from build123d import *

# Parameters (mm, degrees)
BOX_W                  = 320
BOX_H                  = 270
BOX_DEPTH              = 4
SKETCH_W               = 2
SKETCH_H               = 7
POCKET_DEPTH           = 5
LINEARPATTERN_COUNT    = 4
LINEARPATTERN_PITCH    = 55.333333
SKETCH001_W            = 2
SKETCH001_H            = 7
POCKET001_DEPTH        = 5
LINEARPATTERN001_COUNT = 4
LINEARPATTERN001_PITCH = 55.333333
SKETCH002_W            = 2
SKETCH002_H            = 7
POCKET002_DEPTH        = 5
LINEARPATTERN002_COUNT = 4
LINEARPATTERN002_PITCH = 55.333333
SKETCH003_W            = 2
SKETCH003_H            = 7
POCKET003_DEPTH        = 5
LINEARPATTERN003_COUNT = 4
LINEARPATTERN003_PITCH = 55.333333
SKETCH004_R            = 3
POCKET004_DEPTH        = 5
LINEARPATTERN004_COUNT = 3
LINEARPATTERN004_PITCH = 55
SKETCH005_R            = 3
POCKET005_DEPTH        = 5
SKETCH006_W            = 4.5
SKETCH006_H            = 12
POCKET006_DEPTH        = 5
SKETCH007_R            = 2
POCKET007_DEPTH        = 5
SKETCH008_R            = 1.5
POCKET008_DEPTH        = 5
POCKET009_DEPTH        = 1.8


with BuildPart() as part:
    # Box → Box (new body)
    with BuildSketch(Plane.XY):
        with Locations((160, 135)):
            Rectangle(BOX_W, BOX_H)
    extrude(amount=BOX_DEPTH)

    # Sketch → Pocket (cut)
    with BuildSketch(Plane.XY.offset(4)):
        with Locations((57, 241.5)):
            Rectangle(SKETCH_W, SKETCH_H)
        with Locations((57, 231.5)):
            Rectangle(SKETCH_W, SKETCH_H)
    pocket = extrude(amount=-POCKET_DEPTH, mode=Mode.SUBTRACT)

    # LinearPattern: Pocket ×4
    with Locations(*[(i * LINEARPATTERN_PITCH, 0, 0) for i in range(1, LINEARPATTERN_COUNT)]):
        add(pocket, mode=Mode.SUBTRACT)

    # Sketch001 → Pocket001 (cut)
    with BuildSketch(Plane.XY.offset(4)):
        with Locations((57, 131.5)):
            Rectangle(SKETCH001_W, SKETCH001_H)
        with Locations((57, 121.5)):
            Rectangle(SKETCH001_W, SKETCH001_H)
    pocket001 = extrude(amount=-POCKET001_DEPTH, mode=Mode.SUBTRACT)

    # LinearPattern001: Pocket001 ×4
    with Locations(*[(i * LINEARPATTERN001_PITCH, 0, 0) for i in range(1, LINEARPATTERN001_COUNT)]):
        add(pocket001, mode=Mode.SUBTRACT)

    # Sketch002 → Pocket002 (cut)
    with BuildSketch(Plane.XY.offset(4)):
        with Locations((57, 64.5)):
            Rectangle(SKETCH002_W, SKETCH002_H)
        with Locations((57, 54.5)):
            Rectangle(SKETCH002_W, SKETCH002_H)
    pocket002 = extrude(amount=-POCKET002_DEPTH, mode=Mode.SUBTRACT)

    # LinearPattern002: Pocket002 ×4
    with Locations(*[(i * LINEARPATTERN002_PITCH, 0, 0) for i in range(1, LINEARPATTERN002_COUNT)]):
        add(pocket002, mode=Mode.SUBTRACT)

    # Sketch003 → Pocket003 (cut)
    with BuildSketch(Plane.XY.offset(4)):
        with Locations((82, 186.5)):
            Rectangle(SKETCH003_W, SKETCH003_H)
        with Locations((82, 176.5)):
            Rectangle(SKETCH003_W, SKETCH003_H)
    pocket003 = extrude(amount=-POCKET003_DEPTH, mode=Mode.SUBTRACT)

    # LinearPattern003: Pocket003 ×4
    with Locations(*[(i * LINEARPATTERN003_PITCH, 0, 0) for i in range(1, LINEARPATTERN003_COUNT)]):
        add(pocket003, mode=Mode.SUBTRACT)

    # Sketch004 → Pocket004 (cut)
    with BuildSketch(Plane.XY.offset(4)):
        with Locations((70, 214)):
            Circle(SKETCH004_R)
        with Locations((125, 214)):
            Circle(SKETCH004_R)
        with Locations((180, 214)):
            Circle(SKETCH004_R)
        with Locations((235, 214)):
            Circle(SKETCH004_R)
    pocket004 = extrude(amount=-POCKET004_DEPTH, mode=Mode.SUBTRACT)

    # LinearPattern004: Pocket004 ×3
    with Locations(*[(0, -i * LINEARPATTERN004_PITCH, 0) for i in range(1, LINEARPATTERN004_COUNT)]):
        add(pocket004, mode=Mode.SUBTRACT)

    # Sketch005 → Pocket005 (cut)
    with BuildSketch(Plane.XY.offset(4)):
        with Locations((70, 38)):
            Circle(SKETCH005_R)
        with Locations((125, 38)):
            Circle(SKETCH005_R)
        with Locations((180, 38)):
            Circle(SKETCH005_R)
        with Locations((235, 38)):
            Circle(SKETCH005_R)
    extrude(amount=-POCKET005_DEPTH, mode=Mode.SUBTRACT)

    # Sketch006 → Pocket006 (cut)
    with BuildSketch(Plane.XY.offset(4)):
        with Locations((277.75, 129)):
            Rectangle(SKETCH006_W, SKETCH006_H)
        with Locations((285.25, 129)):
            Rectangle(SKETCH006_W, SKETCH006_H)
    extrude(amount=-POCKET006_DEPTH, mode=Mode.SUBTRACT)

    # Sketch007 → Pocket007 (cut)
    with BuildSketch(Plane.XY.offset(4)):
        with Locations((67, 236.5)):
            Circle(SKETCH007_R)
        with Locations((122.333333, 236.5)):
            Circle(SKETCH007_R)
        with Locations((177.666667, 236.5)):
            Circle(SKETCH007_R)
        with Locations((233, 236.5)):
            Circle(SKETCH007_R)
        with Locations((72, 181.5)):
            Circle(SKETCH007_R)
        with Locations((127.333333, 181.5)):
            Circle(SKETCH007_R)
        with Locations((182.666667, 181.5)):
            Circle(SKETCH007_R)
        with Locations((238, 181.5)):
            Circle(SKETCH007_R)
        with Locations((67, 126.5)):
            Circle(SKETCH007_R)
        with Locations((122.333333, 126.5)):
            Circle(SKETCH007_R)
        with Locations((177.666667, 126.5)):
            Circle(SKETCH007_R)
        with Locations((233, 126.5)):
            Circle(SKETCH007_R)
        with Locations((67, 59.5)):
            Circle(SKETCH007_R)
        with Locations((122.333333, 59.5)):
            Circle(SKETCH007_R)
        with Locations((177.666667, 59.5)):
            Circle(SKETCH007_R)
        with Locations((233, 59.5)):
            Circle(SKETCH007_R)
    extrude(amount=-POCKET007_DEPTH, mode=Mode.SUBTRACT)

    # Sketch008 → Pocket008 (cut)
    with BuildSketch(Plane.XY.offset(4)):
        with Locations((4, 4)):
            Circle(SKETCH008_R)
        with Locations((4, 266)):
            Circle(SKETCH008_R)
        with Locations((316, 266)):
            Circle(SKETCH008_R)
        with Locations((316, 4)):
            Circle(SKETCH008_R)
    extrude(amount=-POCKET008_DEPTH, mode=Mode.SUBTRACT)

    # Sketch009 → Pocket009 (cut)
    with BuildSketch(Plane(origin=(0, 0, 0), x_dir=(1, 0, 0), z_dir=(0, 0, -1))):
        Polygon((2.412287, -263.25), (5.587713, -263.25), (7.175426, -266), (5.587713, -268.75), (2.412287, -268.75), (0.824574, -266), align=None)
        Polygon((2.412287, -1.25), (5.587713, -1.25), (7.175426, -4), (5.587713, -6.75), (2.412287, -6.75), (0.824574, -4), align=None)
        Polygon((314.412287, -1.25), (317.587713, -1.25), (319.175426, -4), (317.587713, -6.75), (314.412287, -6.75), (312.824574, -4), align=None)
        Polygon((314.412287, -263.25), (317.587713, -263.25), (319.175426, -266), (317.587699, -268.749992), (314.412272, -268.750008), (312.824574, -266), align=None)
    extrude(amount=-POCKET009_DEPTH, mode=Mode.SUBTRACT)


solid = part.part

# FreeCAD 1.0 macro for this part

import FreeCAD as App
import Part
import Sketcher
from FreeCAD import Vector
Q = App.Units.Quantity

doc = App.newDocument("Part")
body = doc.addObject("PartDesign::Body", "Body")

# Sketch on XY plane
sketch1 = body.newObject("Sketcher::SketchObject", "Sketch")
sketch1.AttachmentSupport = (doc.getObject("XY_Plane"), [""])
sketch1.MapMode = "FlatFace"
sketch1.addGeometry([
    Part.LineSegment(Vector(0, 270, 0), Vector(0, 0, 0)),
    Part.LineSegment(Vector(0, 0, 0), Vector(320, 0, 0)),
    Part.LineSegment(Vector(320, 0, 0), Vector(320, 270, 0)),
    Part.LineSegment(Vector(320, 270, 0), Vector(0, 270, 0)),
], False)
sketch1.addConstraint([
    Sketcher.Constraint("Coincident", 0, 2, 1, 1),
    Sketcher.Constraint("Coincident", 1, 2, 2, 1),
    Sketcher.Constraint("Coincident", 2, 2, 3, 1),
    Sketcher.Constraint("Coincident", 3, 2, 0, 1),
    Sketcher.Constraint("Vertical", 0),
    Sketcher.Constraint("Horizontal", 1),
    Sketcher.Constraint("Vertical", 2),
    Sketcher.Constraint("Horizontal", 3),
    Sketcher.Constraint("Coincident", 0, 2, -1, 1),
    Sketcher.Constraint("DistanceX", 1, 1, 1, 2, Q("320 mm")),
    Sketcher.Constraint("DistanceY", 0, 2, 0, 1, Q("270 mm")),
])
pad1 = body.newObject("PartDesign::Pad", "Pad")
pad1.Profile = sketch1
pad1.Length = 4

# Sketch on XY plane
sketch2 = body.newObject("Sketcher::SketchObject", "Sketch001")
sketch2.AttachmentSupport = (doc.getObject("XY_Plane"), [""])
sketch2.MapMode = "FlatFace"
sketch2.AttachmentOffset = App.Placement(Vector(0, 0, 4), App.Rotation())
sketch2.addGeometry([
    Part.LineSegment(Vector(56, 245, 0), Vector(56, 238, 0)),  # 0
    Part.LineSegment(Vector(56, 238, 0), Vector(58, 238, 0)),  # 1
    Part.LineSegment(Vector(58, 238, 0), Vector(58, 245, 0)),  # 2
    Part.LineSegment(Vector(58, 245, 0), Vector(56, 245, 0)),  # 3
    Part.LineSegment(Vector(56, 235, 0), Vector(56, 228, 0)),  # 4
    Part.LineSegment(Vector(56, 228, 0), Vector(58, 228, 0)),  # 5
    Part.LineSegment(Vector(58, 228, 0), Vector(58, 235, 0)),  # 6
    Part.LineSegment(Vector(58, 235, 0), Vector(56, 235, 0)),  # 7
], False)
sketch2.addConstraint([
    Sketcher.Constraint("Coincident", 0, 2, 1, 1),
    Sketcher.Constraint("Coincident", 1, 2, 2, 1),
    Sketcher.Constraint("Coincident", 2, 2, 3, 1),
    Sketcher.Constraint("Coincident", 3, 2, 0, 1),
    Sketcher.Constraint("Coincident", 4, 2, 5, 1),
    Sketcher.Constraint("Coincident", 5, 2, 6, 1),
    Sketcher.Constraint("Coincident", 6, 2, 7, 1),
    Sketcher.Constraint("Coincident", 7, 2, 4, 1),
    Sketcher.Constraint("Vertical", 0),
    Sketcher.Constraint("Horizontal", 1),
    Sketcher.Constraint("Vertical", 2),
    Sketcher.Constraint("Horizontal", 3),
    Sketcher.Constraint("Vertical", 4),
    Sketcher.Constraint("Horizontal", 5),
    Sketcher.Constraint("Vertical", 6),
    Sketcher.Constraint("Horizontal", 7),
    Sketcher.Constraint("Vertical", 3, 2, 4, 2),
    Sketcher.Constraint("Vertical", 2, 2, 5, 2),
    Sketcher.Constraint("Equal", 2, 4),
    Sketcher.Constraint("DistanceX", 1, 1, 1, 2, Q("2 mm")),
    Sketcher.Constraint("DistanceY", 0, 2, 0, 1, Q("7 mm")),
    Sketcher.Constraint("DistanceX", -1, 1, 0, 2, Q("56 mm")),
    Sketcher.Constraint("DistanceY", -1, 1, 0, 2, Q("238 mm")),
    Sketcher.Constraint("DistanceY", -1, 1, 4, 2, Q("228 mm")),
])
pocket1 = body.newObject("PartDesign::Pocket", "Pocket")
pocket1.Profile = sketch2
pocket1.Length = 5
doc.recompute()

linearpattern = body.newObject("PartDesign::LinearPattern", "LinearPattern")
linearpattern.Originals = [pocket1]
linearpattern.Direction = (doc.getObject("X_Axis"), [""])
linearpattern.Mode = "offset"
linearpattern.Offset = 55.333333
linearpattern.Occurrences = 4
body.Tip = linearpattern

# Sketch on XY plane
sketch3 = body.newObject("Sketcher::SketchObject", "Sketch002")
sketch3.AttachmentSupport = (doc.getObject("XY_Plane"), [""])
sketch3.MapMode = "FlatFace"
sketch3.AttachmentOffset = App.Placement(Vector(0, 0, 4), App.Rotation())
sketch3.addGeometry([
    Part.LineSegment(Vector(56, 135, 0), Vector(56, 128, 0)),  # 0
    Part.LineSegment(Vector(56, 128, 0), Vector(58, 128, 0)),  # 1
    Part.LineSegment(Vector(58, 128, 0), Vector(58, 135, 0)),  # 2
    Part.LineSegment(Vector(58, 135, 0), Vector(56, 135, 0)),  # 3
    Part.LineSegment(Vector(56, 125, 0), Vector(56, 118, 0)),  # 4
    Part.LineSegment(Vector(56, 118, 0), Vector(58, 118, 0)),  # 5
    Part.LineSegment(Vector(58, 118, 0), Vector(58, 125, 0)),  # 6
    Part.LineSegment(Vector(58, 125, 0), Vector(56, 125, 0)),  # 7
], False)
sketch3.addConstraint([
    Sketcher.Constraint("Coincident", 0, 2, 1, 1),
    Sketcher.Constraint("Coincident", 1, 2, 2, 1),
    Sketcher.Constraint("Coincident", 2, 2, 3, 1),
    Sketcher.Constraint("Coincident", 3, 2, 0, 1),
    Sketcher.Constraint("Coincident", 4, 2, 5, 1),
    Sketcher.Constraint("Coincident", 5, 2, 6, 1),
    Sketcher.Constraint("Coincident", 6, 2, 7, 1),
    Sketcher.Constraint("Coincident", 7, 2, 4, 1),
    Sketcher.Constraint("Vertical", 0),
    Sketcher.Constraint("Horizontal", 1),
    Sketcher.Constraint("Vertical", 2),
    Sketcher.Constraint("Horizontal", 3),
    Sketcher.Constraint("Vertical", 4),
    Sketcher.Constraint("Horizontal", 5),
    Sketcher.Constraint("Vertical", 6),
    Sketcher.Constraint("Horizontal", 7),
    Sketcher.Constraint("Vertical", 3, 2, 4, 2),
    Sketcher.Constraint("Vertical", 2, 2, 5, 2),
    Sketcher.Constraint("Equal", 2, 4),
    Sketcher.Constraint("DistanceX", 1, 1, 1, 2, Q("2 mm")),
    Sketcher.Constraint("DistanceY", 0, 2, 0, 1, Q("7 mm")),
    Sketcher.Constraint("DistanceX", -1, 1, 0, 2, Q("56 mm")),
    Sketcher.Constraint("DistanceY", -1, 1, 0, 2, Q("128 mm")),
    Sketcher.Constraint("DistanceY", -1, 1, 4, 2, Q("118 mm")),
])
pocket2 = body.newObject("PartDesign::Pocket", "Pocket001")
pocket2.Profile = sketch3
pocket2.Length = 5
doc.recompute()

linearpattern2 = body.newObject("PartDesign::LinearPattern", "LinearPattern001")
linearpattern2.Originals = [pocket2]
linearpattern2.Direction = (doc.getObject("X_Axis"), [""])
linearpattern2.Mode = "offset"
linearpattern2.Offset = 55.333333
linearpattern2.Occurrences = 4
body.Tip = linearpattern2

# Sketch on XY plane
sketch4 = body.newObject("Sketcher::SketchObject", "Sketch003")
sketch4.AttachmentSupport = (doc.getObject("XY_Plane"), [""])
sketch4.MapMode = "FlatFace"
sketch4.AttachmentOffset = App.Placement(Vector(0, 0, 4), App.Rotation())
sketch4.addGeometry([
    Part.LineSegment(Vector(56, 68, 0), Vector(56, 61, 0)),  # 0
    Part.LineSegment(Vector(56, 61, 0), Vector(58, 61, 0)),  # 1
    Part.LineSegment(Vector(58, 61, 0), Vector(58, 68, 0)),  # 2
    Part.LineSegment(Vector(58, 68, 0), Vector(56, 68, 0)),  # 3
    Part.LineSegment(Vector(56, 58, 0), Vector(56, 51, 0)),  # 4
    Part.LineSegment(Vector(56, 51, 0), Vector(58, 51, 0)),  # 5
    Part.LineSegment(Vector(58, 51, 0), Vector(58, 58, 0)),  # 6
    Part.LineSegment(Vector(58, 58, 0), Vector(56, 58, 0)),  # 7
], False)
sketch4.addConstraint([
    Sketcher.Constraint("Coincident", 0, 2, 1, 1),
    Sketcher.Constraint("Coincident", 1, 2, 2, 1),
    Sketcher.Constraint("Coincident", 2, 2, 3, 1),
    Sketcher.Constraint("Coincident", 3, 2, 0, 1),
    Sketcher.Constraint("Coincident", 4, 2, 5, 1),
    Sketcher.Constraint("Coincident", 5, 2, 6, 1),
    Sketcher.Constraint("Coincident", 6, 2, 7, 1),
    Sketcher.Constraint("Coincident", 7, 2, 4, 1),
    Sketcher.Constraint("Vertical", 0),
    Sketcher.Constraint("Horizontal", 1),
    Sketcher.Constraint("Vertical", 2),
    Sketcher.Constraint("Horizontal", 3),
    Sketcher.Constraint("Vertical", 4),
    Sketcher.Constraint("Horizontal", 5),
    Sketcher.Constraint("Vertical", 6),
    Sketcher.Constraint("Horizontal", 7),
    Sketcher.Constraint("Vertical", 3, 2, 4, 2),
    Sketcher.Constraint("Vertical", 2, 2, 5, 2),
    Sketcher.Constraint("Equal", 2, 4),
    Sketcher.Constraint("DistanceX", 1, 1, 1, 2, Q("2 mm")),
    Sketcher.Constraint("DistanceY", 0, 2, 0, 1, Q("7 mm")),
    Sketcher.Constraint("DistanceX", -1, 1, 0, 2, Q("56 mm")),
    Sketcher.Constraint("DistanceY", -1, 1, 0, 2, Q("61 mm")),
    Sketcher.Constraint("DistanceY", -1, 1, 4, 2, Q("51 mm")),
])
pocket3 = body.newObject("PartDesign::Pocket", "Pocket002")
pocket3.Profile = sketch4
pocket3.Length = 5
doc.recompute()

linearpattern3 = body.newObject("PartDesign::LinearPattern", "LinearPattern002")
linearpattern3.Originals = [pocket3]
linearpattern3.Direction = (doc.getObject("X_Axis"), [""])
linearpattern3.Mode = "offset"
linearpattern3.Offset = 55.333333
linearpattern3.Occurrences = 4
body.Tip = linearpattern3

# Sketch on XY plane
sketch5 = body.newObject("Sketcher::SketchObject", "Sketch004")
sketch5.AttachmentSupport = (doc.getObject("XY_Plane"), [""])
sketch5.MapMode = "FlatFace"
sketch5.AttachmentOffset = App.Placement(Vector(0, 0, 4), App.Rotation())
sketch5.addGeometry([
    Part.LineSegment(Vector(81, 190, 0), Vector(81, 183, 0)),  # 0
    Part.LineSegment(Vector(81, 183, 0), Vector(83, 183, 0)),  # 1
    Part.LineSegment(Vector(83, 183, 0), Vector(83, 190, 0)),  # 2
    Part.LineSegment(Vector(83, 190, 0), Vector(81, 190, 0)),  # 3
    Part.LineSegment(Vector(81, 180, 0), Vector(81, 173, 0)),  # 4
    Part.LineSegment(Vector(81, 173, 0), Vector(83, 173, 0)),  # 5
    Part.LineSegment(Vector(83, 173, 0), Vector(83, 180, 0)),  # 6
    Part.LineSegment(Vector(83, 180, 0), Vector(81, 180, 0)),  # 7
], False)
sketch5.addConstraint([
    Sketcher.Constraint("Coincident", 0, 2, 1, 1),
    Sketcher.Constraint("Coincident", 1, 2, 2, 1),
    Sketcher.Constraint("Coincident", 2, 2, 3, 1),
    Sketcher.Constraint("Coincident", 3, 2, 0, 1),
    Sketcher.Constraint("Coincident", 4, 2, 5, 1),
    Sketcher.Constraint("Coincident", 5, 2, 6, 1),
    Sketcher.Constraint("Coincident", 6, 2, 7, 1),
    Sketcher.Constraint("Coincident", 7, 2, 4, 1),
    Sketcher.Constraint("Vertical", 0),
    Sketcher.Constraint("Horizontal", 1),
    Sketcher.Constraint("Vertical", 2),
    Sketcher.Constraint("Horizontal", 3),
    Sketcher.Constraint("Vertical", 4),
    Sketcher.Constraint("Horizontal", 5),
    Sketcher.Constraint("Vertical", 6),
    Sketcher.Constraint("Horizontal", 7),
    Sketcher.Constraint("Vertical", 3, 2, 4, 2),
    Sketcher.Constraint("Vertical", 2, 2, 5, 2),
    Sketcher.Constraint("Equal", 2, 4),
    Sketcher.Constraint("DistanceX", 1, 1, 1, 2, Q("2 mm")),
    Sketcher.Constraint("DistanceY", 0, 2, 0, 1, Q("7 mm")),
    Sketcher.Constraint("DistanceX", -1, 1, 0, 2, Q("81 mm")),
    Sketcher.Constraint("DistanceY", -1, 1, 0, 2, Q("183 mm")),
    Sketcher.Constraint("DistanceY", -1, 1, 4, 2, Q("173 mm")),
])
pocket4 = body.newObject("PartDesign::Pocket", "Pocket003")
pocket4.Profile = sketch5
pocket4.Length = 5
doc.recompute()

linearpattern4 = body.newObject("PartDesign::LinearPattern", "LinearPattern003")
linearpattern4.Originals = [pocket4]
linearpattern4.Direction = (doc.getObject("X_Axis"), [""])
linearpattern4.Mode = "offset"
linearpattern4.Offset = 55.333333
linearpattern4.Occurrences = 4
body.Tip = linearpattern4

# Sketch on XY plane
sketch6 = body.newObject("Sketcher::SketchObject", "Sketch005")
sketch6.AttachmentSupport = (doc.getObject("XY_Plane"), [""])
sketch6.MapMode = "FlatFace"
sketch6.AttachmentOffset = App.Placement(Vector(0, 0, 4), App.Rotation())
sketch6.addGeometry([
    Part.Circle(Vector(70, 214, 0), Vector(0, 0, 1), 3),
    Part.Circle(Vector(125, 214, 0), Vector(0, 0, 1), 3),
    Part.Circle(Vector(180, 214, 0), Vector(0, 0, 1), 3),
    Part.Circle(Vector(235, 214, 0), Vector(0, 0, 1), 3),
], False)
sketch6.addConstraint([
    Sketcher.Constraint("Equal", 0, 1),
    Sketcher.Constraint("Equal", 1, 2),
    Sketcher.Constraint("Equal", 2, 3),
    Sketcher.Constraint("Horizontal", 0, 3, 1, 3),
    Sketcher.Constraint("Horizontal", 1, 3, 2, 3),
    Sketcher.Constraint("Horizontal", 2, 3, 3, 3),
    Sketcher.Constraint("Diameter", 0, Q("6 mm")),
    Sketcher.Constraint("DistanceX", -1, 1, 0, 3, Q("70 mm")),
    Sketcher.Constraint("DistanceY", -1, 1, 0, 3, Q("214 mm")),
    Sketcher.Constraint("DistanceX", -1, 1, 1, 3, Q("125 mm")),
    Sketcher.Constraint("DistanceX", -1, 1, 2, 3, Q("180 mm")),
    Sketcher.Constraint("DistanceX", -1, 1, 3, 3, Q("235 mm")),
])
pocket5 = body.newObject("PartDesign::Pocket", "Pocket004")
pocket5.Profile = sketch6
pocket5.Length = 5
doc.recompute()

linearpattern5 = body.newObject("PartDesign::LinearPattern", "LinearPattern004")
linearpattern5.Originals = [pocket5]
linearpattern5.Direction = (doc.getObject("Y_Axis"), [""])
linearpattern5.Mode = "offset"
linearpattern5.Offset = 55
linearpattern5.Occurrences = 3
linearpattern5.Reversed = True
body.Tip = linearpattern5

# Sketch on XY plane
sketch7 = body.newObject("Sketcher::SketchObject", "Sketch006")
sketch7.AttachmentSupport = (doc.getObject("XY_Plane"), [""])
sketch7.MapMode = "FlatFace"
sketch7.AttachmentOffset = App.Placement(Vector(0, 0, 4), App.Rotation())
sketch7.addGeometry([
    Part.Circle(Vector(70, 38, 0), Vector(0, 0, 1), 3),
    Part.Circle(Vector(125, 38, 0), Vector(0, 0, 1), 3),
    Part.Circle(Vector(180, 38, 0), Vector(0, 0, 1), 3),
    Part.Circle(Vector(235, 38, 0), Vector(0, 0, 1), 3),
], False)
sketch7.addConstraint([
    Sketcher.Constraint("Equal", 0, 1),
    Sketcher.Constraint("Equal", 1, 2),
    Sketcher.Constraint("Equal", 2, 3),
    Sketcher.Constraint("Horizontal", 0, 3, 1, 3),
    Sketcher.Constraint("Horizontal", 1, 3, 2, 3),
    Sketcher.Constraint("Horizontal", 2, 3, 3, 3),
    Sketcher.Constraint("Diameter", 0, Q("6 mm")),
    Sketcher.Constraint("DistanceX", -1, 1, 0, 3, Q("70 mm")),
    Sketcher.Constraint("DistanceY", -1, 1, 0, 3, Q("38 mm")),
    Sketcher.Constraint("DistanceX", -1, 1, 1, 3, Q("125 mm")),
    Sketcher.Constraint("DistanceX", -1, 1, 2, 3, Q("180 mm")),
    Sketcher.Constraint("DistanceX", -1, 1, 3, 3, Q("235 mm")),
])
pocket6 = body.newObject("PartDesign::Pocket", "Pocket005")
pocket6.Profile = sketch7
pocket6.Length = 5

# Sketch on XY plane
sketch8 = body.newObject("Sketcher::SketchObject", "Sketch007")
sketch8.AttachmentSupport = (doc.getObject("XY_Plane"), [""])
sketch8.MapMode = "FlatFace"
sketch8.AttachmentOffset = App.Placement(Vector(0, 0, 4), App.Rotation())
sketch8.addGeometry([
    Part.LineSegment(Vector(275.5, 135, 0), Vector(275.5, 123, 0)),  # 0
    Part.LineSegment(Vector(275.5, 123, 0), Vector(280, 123, 0)),  # 1
    Part.LineSegment(Vector(280, 123, 0), Vector(280, 135, 0)),  # 2
    Part.LineSegment(Vector(280, 135, 0), Vector(275.5, 135, 0)),  # 3
    Part.LineSegment(Vector(283, 135, 0), Vector(283, 123, 0)),  # 4
    Part.LineSegment(Vector(283, 123, 0), Vector(287.5, 123, 0)),  # 5
    Part.LineSegment(Vector(287.5, 123, 0), Vector(287.5, 135, 0)),  # 6
    Part.LineSegment(Vector(287.5, 135, 0), Vector(283, 135, 0)),  # 7
], False)
sketch8.addConstraint([
    Sketcher.Constraint("Coincident", 0, 2, 1, 1),
    Sketcher.Constraint("Coincident", 1, 2, 2, 1),
    Sketcher.Constraint("Coincident", 2, 2, 3, 1),
    Sketcher.Constraint("Coincident", 3, 2, 0, 1),
    Sketcher.Constraint("Coincident", 4, 2, 5, 1),
    Sketcher.Constraint("Coincident", 5, 2, 6, 1),
    Sketcher.Constraint("Coincident", 6, 2, 7, 1),
    Sketcher.Constraint("Coincident", 7, 2, 4, 1),
    Sketcher.Constraint("Vertical", 0),
    Sketcher.Constraint("Horizontal", 1),
    Sketcher.Constraint("Vertical", 2),
    Sketcher.Constraint("Horizontal", 3),
    Sketcher.Constraint("Vertical", 4),
    Sketcher.Constraint("Horizontal", 5),
    Sketcher.Constraint("Vertical", 6),
    Sketcher.Constraint("Horizontal", 7),
    Sketcher.Constraint("Horizontal", 1, 2, 4, 2),
    Sketcher.Constraint("Horizontal", 3, 2, 6, 2),
    Sketcher.Constraint("Equal", 3, 5),
    Sketcher.Constraint("DistanceY", 0, 2, 0, 1, Q("12 mm")),
    Sketcher.Constraint("DistanceX", 1, 1, 1, 2, Q("4.5 mm")),
    Sketcher.Constraint("DistanceY", -1, 1, 0, 2, Q("123 mm")),
    Sketcher.Constraint("DistanceX", -1, 1, 1, 2, Q("280 mm")),
    Sketcher.Constraint("DistanceX", -1, 1, 4, 2, Q("283 mm")),
])
pocket7 = body.newObject("PartDesign::Pocket", "Pocket006")
pocket7.Profile = sketch8
pocket7.Length = 5

# Sketch on XY plane
sketch9 = body.newObject("Sketcher::SketchObject", "Sketch008")
sketch9.AttachmentSupport = (doc.getObject("XY_Plane"), [""])
sketch9.MapMode = "FlatFace"
sketch9.AttachmentOffset = App.Placement(Vector(0, 0, 4), App.Rotation())
sketch9.addGeometry([
    Part.Circle(Vector(67, 236.5, 0), Vector(0, 0, 1), 2),  # 0
    Part.Circle(Vector(122.3, 236.5, 0), Vector(0, 0, 1), 2),  # 1
    Part.Circle(Vector(177.7, 236.5, 0), Vector(0, 0, 1), 2),  # 2
    Part.Circle(Vector(233, 236.5, 0), Vector(0, 0, 1), 2),  # 3
    Part.Circle(Vector(72, 181.5, 0), Vector(0, 0, 1), 2),  # 4
    Part.Circle(Vector(127.3, 181.5, 0), Vector(0, 0, 1), 2),  # 5
    Part.Circle(Vector(182.7, 181.5, 0), Vector(0, 0, 1), 2),  # 6
    Part.Circle(Vector(238, 181.5, 0), Vector(0, 0, 1), 2),  # 7
    Part.Circle(Vector(67, 126.5, 0), Vector(0, 0, 1), 2),  # 8
    Part.Circle(Vector(122.3, 126.5, 0), Vector(0, 0, 1), 2),  # 9
    Part.Circle(Vector(177.7, 126.5, 0), Vector(0, 0, 1), 2),  # 10
    Part.Circle(Vector(233, 126.5, 0), Vector(0, 0, 1), 2),  # 11
    Part.Circle(Vector(67, 59.5, 0), Vector(0, 0, 1), 2),  # 12
    Part.Circle(Vector(122.3, 59.5, 0), Vector(0, 0, 1), 2),  # 13
    Part.Circle(Vector(177.7, 59.5, 0), Vector(0, 0, 1), 2),  # 14
    Part.Circle(Vector(233, 59.5, 0), Vector(0, 0, 1), 2),  # 15
], False)
sketch9.addConstraint([
    Sketcher.Constraint("Equal", 0, 1),
    Sketcher.Constraint("Equal", 1, 2),
    Sketcher.Constraint("Equal", 2, 3),
    Sketcher.Constraint("Equal", 3, 4),
    Sketcher.Constraint("Equal", 4, 5),
    Sketcher.Constraint("Equal", 5, 6),
    Sketcher.Constraint("Equal", 6, 7),
    Sketcher.Constraint("Equal", 7, 8),
    Sketcher.Constraint("Equal", 8, 9),
    Sketcher.Constraint("Equal", 9, 10),
    Sketcher.Constraint("Equal", 10, 11),
    Sketcher.Constraint("Equal", 11, 12),
    Sketcher.Constraint("Equal", 12, 13),
    Sketcher.Constraint("Equal", 13, 14),
    Sketcher.Constraint("Equal", 14, 15),
    Sketcher.Constraint("Horizontal", 0, 3, 1, 3),
    Sketcher.Constraint("Horizontal", 1, 3, 2, 3),
    Sketcher.Constraint("Horizontal", 2, 3, 3, 3),
    Sketcher.Constraint("Horizontal", 4, 3, 5, 3),
    Sketcher.Constraint("Horizontal", 5, 3, 6, 3),
    Sketcher.Constraint("Horizontal", 6, 3, 7, 3),
    Sketcher.Constraint("Horizontal", 8, 3, 9, 3),
    Sketcher.Constraint("Horizontal", 9, 3, 10, 3),
    Sketcher.Constraint("Horizontal", 10, 3, 11, 3),
    Sketcher.Constraint("Horizontal", 12, 3, 13, 3),
    Sketcher.Constraint("Horizontal", 13, 3, 14, 3),
    Sketcher.Constraint("Horizontal", 14, 3, 15, 3),
    Sketcher.Constraint("Vertical", 0, 3, 8, 3),
    Sketcher.Constraint("Vertical", 1, 3, 9, 3),
    Sketcher.Constraint("Vertical", 2, 3, 10, 3),
    Sketcher.Constraint("Vertical", 3, 3, 11, 3),
    Sketcher.Constraint("Vertical", 8, 3, 12, 3),
    Sketcher.Constraint("Vertical", 9, 3, 13, 3),
    Sketcher.Constraint("Vertical", 10, 3, 14, 3),
    Sketcher.Constraint("Vertical", 11, 3, 15, 3),
    Sketcher.Constraint("Diameter", 0, Q("4 mm")),
    Sketcher.Constraint("DistanceX", -1, 1, 0, 3, Q("67 mm")),
    Sketcher.Constraint("DistanceX", -1, 1, 3, 3, Q("233 mm")),
    Sketcher.Constraint("DistanceX", -1, 1, 4, 3, Q("72 mm")),
    Sketcher.Constraint("DistanceX", -1, 1, 7, 3, Q("238 mm")),
    Sketcher.Constraint("DistanceY", 4, 3, 0, 3, Q("55 mm")),
    Sketcher.Constraint("DistanceX", 1, 3, 5, 3, Q("5 mm")),
    Sketcher.Constraint("DistanceX", 2, 3, 6, 3, Q("5 mm")),
    Sketcher.Constraint("DistanceY", 8, 3, 4, 3, Q("55 mm")),
    Sketcher.Constraint("DistanceY", 12, 3, 8, 3, Q("67 mm")),
    Sketcher.Constraint("DistanceY", -1, 1, 0, 3, Q("236.5 mm")),
    Sketcher.Constraint("DistanceX", -1, 1, 1, 3, Q("122.333333 mm")),
    Sketcher.Constraint("DistanceX", -1, 1, 2, 3, Q("177.666667 mm")),
])
pocket8 = body.newObject("PartDesign::Pocket", "Pocket007")
pocket8.Profile = sketch9
pocket8.Length = 5

# Sketch on XY plane
sketch10 = body.newObject("Sketcher::SketchObject", "Sketch009")
sketch10.AttachmentSupport = (doc.getObject("XY_Plane"), [""])
sketch10.MapMode = "FlatFace"
sketch10.AttachmentOffset = App.Placement(Vector(0, 0, 4), App.Rotation())
sketch10.addGeometry([
    Part.Circle(Vector(4, 4, 0), Vector(0, 0, 1), 1.5),
    Part.Circle(Vector(4, 266, 0), Vector(0, 0, 1), 1.5),
    Part.Circle(Vector(316, 266, 0), Vector(0, 0, 1), 1.5),
    Part.Circle(Vector(316, 4, 0), Vector(0, 0, 1), 1.5),
], False)
sketch10.addConstraint([
    Sketcher.Constraint("Equal", 0, 1),
    Sketcher.Constraint("Equal", 1, 2),
    Sketcher.Constraint("Equal", 2, 3),
    Sketcher.Constraint("Horizontal", 1, 3, 2, 3),
    Sketcher.Constraint("Horizontal", 0, 3, 3, 3),
    Sketcher.Constraint("Vertical", 0, 3, 1, 3),
    Sketcher.Constraint("Vertical", 2, 3, 3, 3),
    Sketcher.Constraint("Diameter", 0, Q("3 mm")),
    Sketcher.Constraint("DistanceX", -1, 1, 0, 3, Q("4 mm")),
    Sketcher.Constraint("DistanceY", -1, 1, 0, 3, Q("4 mm")),
    Sketcher.Constraint("DistanceY", -1, 1, 1, 3, Q("266 mm")),
    Sketcher.Constraint("DistanceX", -1, 1, 2, 3, Q("316 mm")),
])
pocket9 = body.newObject("PartDesign::Pocket", "Pocket008")
pocket9.Profile = sketch10
pocket9.Length = 5

# Sketch on XY plane
sketch11 = body.newObject("Sketcher::SketchObject", "Sketch010")
sketch11.AttachmentSupport = (doc.getObject("XY_Plane"), [""])
sketch11.MapMode = "FlatFace"
sketch11.addGeometry([
    Part.LineSegment(Vector(5.6, 263.2, 0), Vector(2.4, 263.2, 0)),  # 0
    Part.LineSegment(Vector(2.4, 263.2, 0), Vector(0.8, 266, 0)),  # 1
    Part.LineSegment(Vector(0.8, 266, 0), Vector(2.4, 268.8, 0)),  # 2
    Part.LineSegment(Vector(2.4, 268.8, 0), Vector(5.6, 268.8, 0)),  # 3
    Part.LineSegment(Vector(5.6, 268.8, 0), Vector(7.2, 266, 0)),  # 4
    Part.LineSegment(Vector(7.2, 266, 0), Vector(5.6, 263.2, 0)),  # 5
    Part.LineSegment(Vector(5.6, 1.2, 0), Vector(2.4, 1.2, 0)),  # 6
    Part.LineSegment(Vector(2.4, 1.2, 0), Vector(0.8, 4, 0)),  # 7
    Part.LineSegment(Vector(0.8, 4, 0), Vector(2.4, 6.8, 0)),  # 8
    Part.LineSegment(Vector(2.4, 6.8, 0), Vector(5.6, 6.8, 0)),  # 9
    Part.LineSegment(Vector(5.6, 6.8, 0), Vector(7.2, 4, 0)),  # 10
    Part.LineSegment(Vector(7.2, 4, 0), Vector(5.6, 1.2, 0)),  # 11
    Part.LineSegment(Vector(317.6, 1.2, 0), Vector(314.4, 1.2, 0)),  # 12
    Part.LineSegment(Vector(314.4, 1.2, 0), Vector(312.8, 4, 0)),  # 13
    Part.LineSegment(Vector(312.8, 4, 0), Vector(314.4, 6.8, 0)),  # 14
    Part.LineSegment(Vector(314.4, 6.8, 0), Vector(317.6, 6.8, 0)),  # 15
    Part.LineSegment(Vector(317.6, 6.8, 0), Vector(319.2, 4, 0)),  # 16
    Part.LineSegment(Vector(319.2, 4, 0), Vector(317.6, 1.2, 0)),  # 17
    Part.LineSegment(Vector(317.6, 263.2, 0), Vector(314.4, 263.2, 0)),  # 18
    Part.LineSegment(Vector(314.4, 263.2, 0), Vector(312.8, 266, 0)),  # 19
    Part.LineSegment(Vector(312.8, 266, 0), Vector(314.4, 268.8, 0)),  # 20
    Part.LineSegment(Vector(314.4, 268.8, 0), Vector(317.6, 268.7, 0)),  # 21
    Part.LineSegment(Vector(317.6, 268.7, 0), Vector(319.2, 266, 0)),  # 22
    Part.LineSegment(Vector(319.2, 266, 0), Vector(317.6, 263.2, 0)),  # 23
], False)
sketch11.addConstraint([
    Sketcher.Constraint("Coincident", 0, 2, 1, 1),
    Sketcher.Constraint("Coincident", 1, 2, 2, 1),
    Sketcher.Constraint("Coincident", 2, 2, 3, 1),
    Sketcher.Constraint("Coincident", 3, 2, 4, 1),
    Sketcher.Constraint("Coincident", 4, 2, 5, 1),
    Sketcher.Constraint("Coincident", 5, 2, 0, 1),
    Sketcher.Constraint("Coincident", 6, 2, 7, 1),
    Sketcher.Constraint("Coincident", 7, 2, 8, 1),
    Sketcher.Constraint("Coincident", 8, 2, 9, 1),
    Sketcher.Constraint("Coincident", 9, 2, 10, 1),
    Sketcher.Constraint("Coincident", 10, 2, 11, 1),
    Sketcher.Constraint("Coincident", 11, 2, 6, 1),
    Sketcher.Constraint("Coincident", 12, 2, 13, 1),
    Sketcher.Constraint("Coincident", 13, 2, 14, 1),
    Sketcher.Constraint("Coincident", 14, 2, 15, 1),
    Sketcher.Constraint("Coincident", 15, 2, 16, 1),
    Sketcher.Constraint("Coincident", 16, 2, 17, 1),
    Sketcher.Constraint("Coincident", 17, 2, 12, 1),
    Sketcher.Constraint("Coincident", 18, 2, 19, 1),
    Sketcher.Constraint("Coincident", 19, 2, 20, 1),
    Sketcher.Constraint("Coincident", 20, 2, 21, 1),
    Sketcher.Constraint("Coincident", 21, 2, 22, 1),
    Sketcher.Constraint("Coincident", 22, 2, 23, 1),
    Sketcher.Constraint("Coincident", 23, 2, 18, 1),
    Sketcher.Constraint("Horizontal", 0),
    Sketcher.Constraint("Horizontal", 3),
    Sketcher.Constraint("Horizontal", 6),
    Sketcher.Constraint("Horizontal", 9),
    Sketcher.Constraint("Horizontal", 12),
    Sketcher.Constraint("Horizontal", 15),
    Sketcher.Constraint("Horizontal", 18),
    Sketcher.Constraint("Parallel", 1, 4),
    Sketcher.Constraint("Parallel", 2, 5),
    Sketcher.Constraint("Parallel", 4, 7),
    Sketcher.Constraint("Parallel", 5, 8),
    Sketcher.Constraint("Parallel", 7, 10),
    Sketcher.Constraint("Parallel", 8, 11),
    Sketcher.Constraint("Parallel", 10, 13),
    Sketcher.Constraint("Parallel", 11, 14),
    Sketcher.Constraint("Parallel", 13, 16),
    Sketcher.Constraint("Parallel", 14, 17),
    Sketcher.Constraint("Parallel", 16, 19),
    Sketcher.Constraint("Parallel", 17, 23),
    Sketcher.Constraint("Horizontal", 1, 2, 4, 2),
    Sketcher.Constraint("Horizontal", 7, 2, 10, 2),
    Sketcher.Constraint("Horizontal", 11, 2, 12, 2),
    Sketcher.Constraint("Horizontal", 10, 2, 13, 2),
    Sketcher.Constraint("Horizontal", 9, 2, 14, 2),
    Sketcher.Constraint("Horizontal", 13, 2, 16, 2),
    Sketcher.Constraint("Horizontal", 5, 2, 18, 2),
    Sketcher.Constraint("Horizontal", 4, 2, 19, 2),
    Sketcher.Constraint("Horizontal", 19, 2, 22, 2),
    Sketcher.Constraint("Vertical", 0, 2, 2, 2),
    Sketcher.Constraint("Vertical", 3, 2, 5, 2),
    Sketcher.Constraint("Vertical", 2, 2, 6, 2),
    Sketcher.Constraint("Vertical", 1, 2, 7, 2),
    Sketcher.Constraint("Vertical", 6, 2, 8, 2),
    Sketcher.Constraint("Vertical", 5, 2, 9, 2),
    Sketcher.Constraint("Vertical", 14, 2, 18, 2),
    Sketcher.Constraint("Vertical", 16, 2, 22, 2),
    Sketcher.Constraint("Equal", 9, 12),
    Sketcher.Constraint("Equal", 19, 20),
    Sketcher.Constraint("Equal", 20, 21),
    Sketcher.Constraint("Equal", 21, 22),
    Sketcher.Constraint("Angle", 1, Q("119.999996 deg")),
    Sketcher.Constraint("DistanceY", -1, 1, 1, 2, Q("266 mm")),
    Sketcher.Constraint("DistanceY", -1, 1, 7, 2, Q("4 mm")),
    Sketcher.Constraint("DistanceX", 6, 2, 12, 2, Q("312 mm")),
    Sketcher.Constraint("DistanceY", 0, 2, 2, 2, Q("5.5 mm")),
    Sketcher.Constraint("DistanceX", -1, 1, 21, 2, Q("317.587699 mm")),
    Sketcher.Constraint("DistanceX", 0, 2, 0, 1, Q("3.175426 mm")),
    Sketcher.Constraint("DistanceY", -1, 1, 20, 2, Q("268.750008 mm")),
])
pocket10 = body.newObject("PartDesign::Pocket", "Pocket009")
pocket10.Profile = sketch11
pocket10.Length = 1.8
pocket10.Reversed = True

doc.recompute()
